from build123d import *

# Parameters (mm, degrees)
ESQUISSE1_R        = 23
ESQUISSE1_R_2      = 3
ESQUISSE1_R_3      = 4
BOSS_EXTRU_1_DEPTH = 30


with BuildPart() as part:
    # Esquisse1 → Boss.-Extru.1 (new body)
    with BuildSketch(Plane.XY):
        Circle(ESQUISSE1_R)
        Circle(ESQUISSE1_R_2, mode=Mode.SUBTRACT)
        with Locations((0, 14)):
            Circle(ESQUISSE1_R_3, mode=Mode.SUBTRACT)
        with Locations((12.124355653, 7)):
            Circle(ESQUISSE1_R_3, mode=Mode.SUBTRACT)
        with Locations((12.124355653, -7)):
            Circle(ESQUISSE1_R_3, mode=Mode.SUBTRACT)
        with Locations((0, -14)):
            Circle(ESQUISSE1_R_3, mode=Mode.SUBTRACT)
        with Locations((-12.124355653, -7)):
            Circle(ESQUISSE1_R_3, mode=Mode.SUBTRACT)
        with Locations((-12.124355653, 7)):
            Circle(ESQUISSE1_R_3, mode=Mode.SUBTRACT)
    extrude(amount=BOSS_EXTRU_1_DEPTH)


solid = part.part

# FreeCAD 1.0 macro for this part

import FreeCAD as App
import Part
import Sketcher
from FreeCAD import Vector
Q = App.Units.Quantity

doc = App.newDocument("Part")
body = doc.addObject("PartDesign::Body", "Body")

# Sketch on XY plane
sketch1 = body.newObject("Sketcher::SketchObject", "Sketch")
sketch1.AttachmentSupport = (doc.getObject("XY_Plane"), [""])
sketch1.MapMode = "FlatFace"
sketch1.addGeometry(Part.Circle(Vector(0, 0, 0), Vector(0, 0, 1), 23), False)
sketch1.addGeometry(Part.Circle(Vector(0, -14, 0), Vector(0, 0, 1), 4), False)
sketch1.addGeometry(Part.Circle(Vector(-12.1, -7, 0), Vector(0, 0, 1), 4), False)
sketch1.addGeometry(Part.Circle(Vector(12.1, -7, 0), Vector(0, 0, 1), 4), False)
sketch1.addGeometry(Part.Circle(Vector(-12.1, 7, 0), Vector(0, 0, 1), 4), False)
sketch1.addGeometry(Part.Circle(Vector(0, 0, 0), Vector(0, 0, 1), 3), False)
sketch1.addGeometry(Part.Circle(Vector(0, 14, 0), Vector(0, 0, 1), 4), False)
sketch1.addGeometry(Part.Circle(Vector(12.1, 7, 0), Vector(0, 0, 1), 4), False)
sketch1.addConstraint(Sketcher.Constraint("Coincident", 0, 3, -1, 1))
sketch1.addConstraint(Sketcher.Constraint("Coincident", 5, 3, -1, 1))
sketch1.addConstraint(Sketcher.Constraint("Equal", 1, 2))
sketch1.addConstraint(Sketcher.Constraint("Equal", 2, 3))
sketch1.addConstraint(Sketcher.Constraint("Equal", 3, 4))
sketch1.addConstraint(Sketcher.Constraint("Equal", 4, 6))
sketch1.addConstraint(Sketcher.Constraint("Equal", 6, 7))
sketch1.addConstraint(Sketcher.Constraint("Symmetric", 3, 3, 4, 3, -1, 1))
sketch1.addConstraint(Sketcher.Constraint("Symmetric", 1, 3, 6, 3, -1, 1))
sketch1.addConstraint(Sketcher.Constraint("Symmetric", 2, 3, 7, 3, -1, 1))
sketch1.addConstraint(Sketcher.Constraint("Symmetric", 2, 3, 3, 3, -2))
sketch1.addConstraint(Sketcher.Constraint("PointOnObject", 1, 3, -2))
sketch1.addConstraint(Sketcher.Constraint("Diameter", 0, Q("46 mm")))
sketch1.addConstraint(Sketcher.Constraint("Diameter", 1, Q("8 mm")))
sketch1.addConstraint(Sketcher.Constraint("Diameter", 5, Q("6 mm")))
sketch1.addConstraint(Sketcher.Constraint("DistanceY", 1, 3, -1, 1, Q("14 mm")))
sketch1.addConstraint(Sketcher.Constraint("DistanceY", 2, 3, -1, 1, Q("7 mm")))
sketch1.addConstraint(Sketcher.Constraint("DistanceX", 2, 3, 3, 3, Q("24.248711 mm")))
pad1 = body.newObject("PartDesign::Pad", "Pad")
pad1.Profile = sketch1
pad1.Length = 30

doc.recompute()
